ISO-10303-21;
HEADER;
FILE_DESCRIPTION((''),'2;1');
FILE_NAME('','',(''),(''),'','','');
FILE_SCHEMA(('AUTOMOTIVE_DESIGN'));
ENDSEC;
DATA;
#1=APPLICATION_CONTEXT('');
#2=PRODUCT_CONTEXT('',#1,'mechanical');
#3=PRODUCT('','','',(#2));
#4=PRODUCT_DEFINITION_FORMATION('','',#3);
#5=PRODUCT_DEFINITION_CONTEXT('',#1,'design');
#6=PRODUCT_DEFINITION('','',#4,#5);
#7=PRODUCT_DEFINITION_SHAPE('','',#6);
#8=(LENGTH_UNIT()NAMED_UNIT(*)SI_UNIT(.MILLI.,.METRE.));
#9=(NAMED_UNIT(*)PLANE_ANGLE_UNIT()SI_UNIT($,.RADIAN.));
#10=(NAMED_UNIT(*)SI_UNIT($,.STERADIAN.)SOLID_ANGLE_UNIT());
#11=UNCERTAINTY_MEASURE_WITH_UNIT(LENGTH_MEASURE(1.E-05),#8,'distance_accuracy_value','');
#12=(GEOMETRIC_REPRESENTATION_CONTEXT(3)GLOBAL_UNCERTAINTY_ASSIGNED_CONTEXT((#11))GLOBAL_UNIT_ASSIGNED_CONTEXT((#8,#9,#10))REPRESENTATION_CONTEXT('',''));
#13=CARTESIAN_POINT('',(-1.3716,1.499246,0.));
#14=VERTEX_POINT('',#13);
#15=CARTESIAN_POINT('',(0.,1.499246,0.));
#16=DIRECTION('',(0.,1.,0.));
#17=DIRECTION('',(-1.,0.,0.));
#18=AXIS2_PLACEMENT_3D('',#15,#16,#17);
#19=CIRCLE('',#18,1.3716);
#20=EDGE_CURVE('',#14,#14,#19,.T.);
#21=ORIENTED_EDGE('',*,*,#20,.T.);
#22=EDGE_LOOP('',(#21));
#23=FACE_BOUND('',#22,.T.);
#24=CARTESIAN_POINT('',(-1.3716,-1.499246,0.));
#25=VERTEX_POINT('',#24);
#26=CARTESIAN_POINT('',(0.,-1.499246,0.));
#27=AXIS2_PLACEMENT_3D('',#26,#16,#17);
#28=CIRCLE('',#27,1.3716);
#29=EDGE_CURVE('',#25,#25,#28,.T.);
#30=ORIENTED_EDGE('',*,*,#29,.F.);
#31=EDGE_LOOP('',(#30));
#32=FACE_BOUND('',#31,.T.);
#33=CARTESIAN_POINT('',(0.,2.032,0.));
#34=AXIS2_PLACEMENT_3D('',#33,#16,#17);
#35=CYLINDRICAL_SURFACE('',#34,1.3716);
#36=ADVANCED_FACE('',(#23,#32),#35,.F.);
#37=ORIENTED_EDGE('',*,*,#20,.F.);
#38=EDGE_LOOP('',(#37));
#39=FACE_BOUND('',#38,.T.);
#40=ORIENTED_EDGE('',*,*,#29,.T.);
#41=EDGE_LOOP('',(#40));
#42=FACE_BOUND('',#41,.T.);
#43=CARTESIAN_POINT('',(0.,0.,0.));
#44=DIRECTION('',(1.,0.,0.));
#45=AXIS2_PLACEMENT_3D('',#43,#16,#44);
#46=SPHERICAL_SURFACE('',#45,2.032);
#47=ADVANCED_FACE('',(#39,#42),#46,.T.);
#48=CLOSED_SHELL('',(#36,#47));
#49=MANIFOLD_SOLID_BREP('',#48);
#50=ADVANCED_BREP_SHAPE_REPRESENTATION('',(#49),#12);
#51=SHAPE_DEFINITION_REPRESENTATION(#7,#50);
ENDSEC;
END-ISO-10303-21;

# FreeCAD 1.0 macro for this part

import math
import FreeCAD as App
import Part
import Sketcher
Q = App.Units.Quantity

doc = App.newDocument("Part")
body = doc.addObject("PartDesign::Body", "Body")

sketch1 = body.newObject("Sketcher::SketchObject", "Sketch")
sketch1.AttachmentSupport = (doc.getObject("XY_Plane"), [""])
sketch1.MapMode = "FlatFace"
sketch1.addGeometry([
    Part.ArcOfCircle(Part.Circle(App.Vector(0, 0, 0), App.Vector(0, 0, 1), 2), math.radians(-48), math.radians(48)),
    Part.LineSegment(App.Vector(1.4, 1.5, 0), App.Vector(1.4, -1.5, 0)),
], False)
sketch1.addConstraint([
    Sketcher.Constraint("Coincident", 0, 1, 1, 2),
    Sketcher.Constraint("Coincident", 1, 1, 0, 2),
    Sketcher.Constraint("Vertical", 1),
    Sketcher.Constraint("Coincident", 0, 3, -1, 1),
    Sketcher.Constraint("Radius", 0, Q("0.08 in")),
    Sketcher.Constraint("DistanceX", -1, 1, 0, 1, Q("0.054 in")),
])
revolution = body.newObject("PartDesign::Revolution", "Revolution")
revolution.Profile = sketch1
revolution.ReferenceAxis = (sketch1, ["V_Axis"])
revolution.Angle = 360

doc.recompute()
